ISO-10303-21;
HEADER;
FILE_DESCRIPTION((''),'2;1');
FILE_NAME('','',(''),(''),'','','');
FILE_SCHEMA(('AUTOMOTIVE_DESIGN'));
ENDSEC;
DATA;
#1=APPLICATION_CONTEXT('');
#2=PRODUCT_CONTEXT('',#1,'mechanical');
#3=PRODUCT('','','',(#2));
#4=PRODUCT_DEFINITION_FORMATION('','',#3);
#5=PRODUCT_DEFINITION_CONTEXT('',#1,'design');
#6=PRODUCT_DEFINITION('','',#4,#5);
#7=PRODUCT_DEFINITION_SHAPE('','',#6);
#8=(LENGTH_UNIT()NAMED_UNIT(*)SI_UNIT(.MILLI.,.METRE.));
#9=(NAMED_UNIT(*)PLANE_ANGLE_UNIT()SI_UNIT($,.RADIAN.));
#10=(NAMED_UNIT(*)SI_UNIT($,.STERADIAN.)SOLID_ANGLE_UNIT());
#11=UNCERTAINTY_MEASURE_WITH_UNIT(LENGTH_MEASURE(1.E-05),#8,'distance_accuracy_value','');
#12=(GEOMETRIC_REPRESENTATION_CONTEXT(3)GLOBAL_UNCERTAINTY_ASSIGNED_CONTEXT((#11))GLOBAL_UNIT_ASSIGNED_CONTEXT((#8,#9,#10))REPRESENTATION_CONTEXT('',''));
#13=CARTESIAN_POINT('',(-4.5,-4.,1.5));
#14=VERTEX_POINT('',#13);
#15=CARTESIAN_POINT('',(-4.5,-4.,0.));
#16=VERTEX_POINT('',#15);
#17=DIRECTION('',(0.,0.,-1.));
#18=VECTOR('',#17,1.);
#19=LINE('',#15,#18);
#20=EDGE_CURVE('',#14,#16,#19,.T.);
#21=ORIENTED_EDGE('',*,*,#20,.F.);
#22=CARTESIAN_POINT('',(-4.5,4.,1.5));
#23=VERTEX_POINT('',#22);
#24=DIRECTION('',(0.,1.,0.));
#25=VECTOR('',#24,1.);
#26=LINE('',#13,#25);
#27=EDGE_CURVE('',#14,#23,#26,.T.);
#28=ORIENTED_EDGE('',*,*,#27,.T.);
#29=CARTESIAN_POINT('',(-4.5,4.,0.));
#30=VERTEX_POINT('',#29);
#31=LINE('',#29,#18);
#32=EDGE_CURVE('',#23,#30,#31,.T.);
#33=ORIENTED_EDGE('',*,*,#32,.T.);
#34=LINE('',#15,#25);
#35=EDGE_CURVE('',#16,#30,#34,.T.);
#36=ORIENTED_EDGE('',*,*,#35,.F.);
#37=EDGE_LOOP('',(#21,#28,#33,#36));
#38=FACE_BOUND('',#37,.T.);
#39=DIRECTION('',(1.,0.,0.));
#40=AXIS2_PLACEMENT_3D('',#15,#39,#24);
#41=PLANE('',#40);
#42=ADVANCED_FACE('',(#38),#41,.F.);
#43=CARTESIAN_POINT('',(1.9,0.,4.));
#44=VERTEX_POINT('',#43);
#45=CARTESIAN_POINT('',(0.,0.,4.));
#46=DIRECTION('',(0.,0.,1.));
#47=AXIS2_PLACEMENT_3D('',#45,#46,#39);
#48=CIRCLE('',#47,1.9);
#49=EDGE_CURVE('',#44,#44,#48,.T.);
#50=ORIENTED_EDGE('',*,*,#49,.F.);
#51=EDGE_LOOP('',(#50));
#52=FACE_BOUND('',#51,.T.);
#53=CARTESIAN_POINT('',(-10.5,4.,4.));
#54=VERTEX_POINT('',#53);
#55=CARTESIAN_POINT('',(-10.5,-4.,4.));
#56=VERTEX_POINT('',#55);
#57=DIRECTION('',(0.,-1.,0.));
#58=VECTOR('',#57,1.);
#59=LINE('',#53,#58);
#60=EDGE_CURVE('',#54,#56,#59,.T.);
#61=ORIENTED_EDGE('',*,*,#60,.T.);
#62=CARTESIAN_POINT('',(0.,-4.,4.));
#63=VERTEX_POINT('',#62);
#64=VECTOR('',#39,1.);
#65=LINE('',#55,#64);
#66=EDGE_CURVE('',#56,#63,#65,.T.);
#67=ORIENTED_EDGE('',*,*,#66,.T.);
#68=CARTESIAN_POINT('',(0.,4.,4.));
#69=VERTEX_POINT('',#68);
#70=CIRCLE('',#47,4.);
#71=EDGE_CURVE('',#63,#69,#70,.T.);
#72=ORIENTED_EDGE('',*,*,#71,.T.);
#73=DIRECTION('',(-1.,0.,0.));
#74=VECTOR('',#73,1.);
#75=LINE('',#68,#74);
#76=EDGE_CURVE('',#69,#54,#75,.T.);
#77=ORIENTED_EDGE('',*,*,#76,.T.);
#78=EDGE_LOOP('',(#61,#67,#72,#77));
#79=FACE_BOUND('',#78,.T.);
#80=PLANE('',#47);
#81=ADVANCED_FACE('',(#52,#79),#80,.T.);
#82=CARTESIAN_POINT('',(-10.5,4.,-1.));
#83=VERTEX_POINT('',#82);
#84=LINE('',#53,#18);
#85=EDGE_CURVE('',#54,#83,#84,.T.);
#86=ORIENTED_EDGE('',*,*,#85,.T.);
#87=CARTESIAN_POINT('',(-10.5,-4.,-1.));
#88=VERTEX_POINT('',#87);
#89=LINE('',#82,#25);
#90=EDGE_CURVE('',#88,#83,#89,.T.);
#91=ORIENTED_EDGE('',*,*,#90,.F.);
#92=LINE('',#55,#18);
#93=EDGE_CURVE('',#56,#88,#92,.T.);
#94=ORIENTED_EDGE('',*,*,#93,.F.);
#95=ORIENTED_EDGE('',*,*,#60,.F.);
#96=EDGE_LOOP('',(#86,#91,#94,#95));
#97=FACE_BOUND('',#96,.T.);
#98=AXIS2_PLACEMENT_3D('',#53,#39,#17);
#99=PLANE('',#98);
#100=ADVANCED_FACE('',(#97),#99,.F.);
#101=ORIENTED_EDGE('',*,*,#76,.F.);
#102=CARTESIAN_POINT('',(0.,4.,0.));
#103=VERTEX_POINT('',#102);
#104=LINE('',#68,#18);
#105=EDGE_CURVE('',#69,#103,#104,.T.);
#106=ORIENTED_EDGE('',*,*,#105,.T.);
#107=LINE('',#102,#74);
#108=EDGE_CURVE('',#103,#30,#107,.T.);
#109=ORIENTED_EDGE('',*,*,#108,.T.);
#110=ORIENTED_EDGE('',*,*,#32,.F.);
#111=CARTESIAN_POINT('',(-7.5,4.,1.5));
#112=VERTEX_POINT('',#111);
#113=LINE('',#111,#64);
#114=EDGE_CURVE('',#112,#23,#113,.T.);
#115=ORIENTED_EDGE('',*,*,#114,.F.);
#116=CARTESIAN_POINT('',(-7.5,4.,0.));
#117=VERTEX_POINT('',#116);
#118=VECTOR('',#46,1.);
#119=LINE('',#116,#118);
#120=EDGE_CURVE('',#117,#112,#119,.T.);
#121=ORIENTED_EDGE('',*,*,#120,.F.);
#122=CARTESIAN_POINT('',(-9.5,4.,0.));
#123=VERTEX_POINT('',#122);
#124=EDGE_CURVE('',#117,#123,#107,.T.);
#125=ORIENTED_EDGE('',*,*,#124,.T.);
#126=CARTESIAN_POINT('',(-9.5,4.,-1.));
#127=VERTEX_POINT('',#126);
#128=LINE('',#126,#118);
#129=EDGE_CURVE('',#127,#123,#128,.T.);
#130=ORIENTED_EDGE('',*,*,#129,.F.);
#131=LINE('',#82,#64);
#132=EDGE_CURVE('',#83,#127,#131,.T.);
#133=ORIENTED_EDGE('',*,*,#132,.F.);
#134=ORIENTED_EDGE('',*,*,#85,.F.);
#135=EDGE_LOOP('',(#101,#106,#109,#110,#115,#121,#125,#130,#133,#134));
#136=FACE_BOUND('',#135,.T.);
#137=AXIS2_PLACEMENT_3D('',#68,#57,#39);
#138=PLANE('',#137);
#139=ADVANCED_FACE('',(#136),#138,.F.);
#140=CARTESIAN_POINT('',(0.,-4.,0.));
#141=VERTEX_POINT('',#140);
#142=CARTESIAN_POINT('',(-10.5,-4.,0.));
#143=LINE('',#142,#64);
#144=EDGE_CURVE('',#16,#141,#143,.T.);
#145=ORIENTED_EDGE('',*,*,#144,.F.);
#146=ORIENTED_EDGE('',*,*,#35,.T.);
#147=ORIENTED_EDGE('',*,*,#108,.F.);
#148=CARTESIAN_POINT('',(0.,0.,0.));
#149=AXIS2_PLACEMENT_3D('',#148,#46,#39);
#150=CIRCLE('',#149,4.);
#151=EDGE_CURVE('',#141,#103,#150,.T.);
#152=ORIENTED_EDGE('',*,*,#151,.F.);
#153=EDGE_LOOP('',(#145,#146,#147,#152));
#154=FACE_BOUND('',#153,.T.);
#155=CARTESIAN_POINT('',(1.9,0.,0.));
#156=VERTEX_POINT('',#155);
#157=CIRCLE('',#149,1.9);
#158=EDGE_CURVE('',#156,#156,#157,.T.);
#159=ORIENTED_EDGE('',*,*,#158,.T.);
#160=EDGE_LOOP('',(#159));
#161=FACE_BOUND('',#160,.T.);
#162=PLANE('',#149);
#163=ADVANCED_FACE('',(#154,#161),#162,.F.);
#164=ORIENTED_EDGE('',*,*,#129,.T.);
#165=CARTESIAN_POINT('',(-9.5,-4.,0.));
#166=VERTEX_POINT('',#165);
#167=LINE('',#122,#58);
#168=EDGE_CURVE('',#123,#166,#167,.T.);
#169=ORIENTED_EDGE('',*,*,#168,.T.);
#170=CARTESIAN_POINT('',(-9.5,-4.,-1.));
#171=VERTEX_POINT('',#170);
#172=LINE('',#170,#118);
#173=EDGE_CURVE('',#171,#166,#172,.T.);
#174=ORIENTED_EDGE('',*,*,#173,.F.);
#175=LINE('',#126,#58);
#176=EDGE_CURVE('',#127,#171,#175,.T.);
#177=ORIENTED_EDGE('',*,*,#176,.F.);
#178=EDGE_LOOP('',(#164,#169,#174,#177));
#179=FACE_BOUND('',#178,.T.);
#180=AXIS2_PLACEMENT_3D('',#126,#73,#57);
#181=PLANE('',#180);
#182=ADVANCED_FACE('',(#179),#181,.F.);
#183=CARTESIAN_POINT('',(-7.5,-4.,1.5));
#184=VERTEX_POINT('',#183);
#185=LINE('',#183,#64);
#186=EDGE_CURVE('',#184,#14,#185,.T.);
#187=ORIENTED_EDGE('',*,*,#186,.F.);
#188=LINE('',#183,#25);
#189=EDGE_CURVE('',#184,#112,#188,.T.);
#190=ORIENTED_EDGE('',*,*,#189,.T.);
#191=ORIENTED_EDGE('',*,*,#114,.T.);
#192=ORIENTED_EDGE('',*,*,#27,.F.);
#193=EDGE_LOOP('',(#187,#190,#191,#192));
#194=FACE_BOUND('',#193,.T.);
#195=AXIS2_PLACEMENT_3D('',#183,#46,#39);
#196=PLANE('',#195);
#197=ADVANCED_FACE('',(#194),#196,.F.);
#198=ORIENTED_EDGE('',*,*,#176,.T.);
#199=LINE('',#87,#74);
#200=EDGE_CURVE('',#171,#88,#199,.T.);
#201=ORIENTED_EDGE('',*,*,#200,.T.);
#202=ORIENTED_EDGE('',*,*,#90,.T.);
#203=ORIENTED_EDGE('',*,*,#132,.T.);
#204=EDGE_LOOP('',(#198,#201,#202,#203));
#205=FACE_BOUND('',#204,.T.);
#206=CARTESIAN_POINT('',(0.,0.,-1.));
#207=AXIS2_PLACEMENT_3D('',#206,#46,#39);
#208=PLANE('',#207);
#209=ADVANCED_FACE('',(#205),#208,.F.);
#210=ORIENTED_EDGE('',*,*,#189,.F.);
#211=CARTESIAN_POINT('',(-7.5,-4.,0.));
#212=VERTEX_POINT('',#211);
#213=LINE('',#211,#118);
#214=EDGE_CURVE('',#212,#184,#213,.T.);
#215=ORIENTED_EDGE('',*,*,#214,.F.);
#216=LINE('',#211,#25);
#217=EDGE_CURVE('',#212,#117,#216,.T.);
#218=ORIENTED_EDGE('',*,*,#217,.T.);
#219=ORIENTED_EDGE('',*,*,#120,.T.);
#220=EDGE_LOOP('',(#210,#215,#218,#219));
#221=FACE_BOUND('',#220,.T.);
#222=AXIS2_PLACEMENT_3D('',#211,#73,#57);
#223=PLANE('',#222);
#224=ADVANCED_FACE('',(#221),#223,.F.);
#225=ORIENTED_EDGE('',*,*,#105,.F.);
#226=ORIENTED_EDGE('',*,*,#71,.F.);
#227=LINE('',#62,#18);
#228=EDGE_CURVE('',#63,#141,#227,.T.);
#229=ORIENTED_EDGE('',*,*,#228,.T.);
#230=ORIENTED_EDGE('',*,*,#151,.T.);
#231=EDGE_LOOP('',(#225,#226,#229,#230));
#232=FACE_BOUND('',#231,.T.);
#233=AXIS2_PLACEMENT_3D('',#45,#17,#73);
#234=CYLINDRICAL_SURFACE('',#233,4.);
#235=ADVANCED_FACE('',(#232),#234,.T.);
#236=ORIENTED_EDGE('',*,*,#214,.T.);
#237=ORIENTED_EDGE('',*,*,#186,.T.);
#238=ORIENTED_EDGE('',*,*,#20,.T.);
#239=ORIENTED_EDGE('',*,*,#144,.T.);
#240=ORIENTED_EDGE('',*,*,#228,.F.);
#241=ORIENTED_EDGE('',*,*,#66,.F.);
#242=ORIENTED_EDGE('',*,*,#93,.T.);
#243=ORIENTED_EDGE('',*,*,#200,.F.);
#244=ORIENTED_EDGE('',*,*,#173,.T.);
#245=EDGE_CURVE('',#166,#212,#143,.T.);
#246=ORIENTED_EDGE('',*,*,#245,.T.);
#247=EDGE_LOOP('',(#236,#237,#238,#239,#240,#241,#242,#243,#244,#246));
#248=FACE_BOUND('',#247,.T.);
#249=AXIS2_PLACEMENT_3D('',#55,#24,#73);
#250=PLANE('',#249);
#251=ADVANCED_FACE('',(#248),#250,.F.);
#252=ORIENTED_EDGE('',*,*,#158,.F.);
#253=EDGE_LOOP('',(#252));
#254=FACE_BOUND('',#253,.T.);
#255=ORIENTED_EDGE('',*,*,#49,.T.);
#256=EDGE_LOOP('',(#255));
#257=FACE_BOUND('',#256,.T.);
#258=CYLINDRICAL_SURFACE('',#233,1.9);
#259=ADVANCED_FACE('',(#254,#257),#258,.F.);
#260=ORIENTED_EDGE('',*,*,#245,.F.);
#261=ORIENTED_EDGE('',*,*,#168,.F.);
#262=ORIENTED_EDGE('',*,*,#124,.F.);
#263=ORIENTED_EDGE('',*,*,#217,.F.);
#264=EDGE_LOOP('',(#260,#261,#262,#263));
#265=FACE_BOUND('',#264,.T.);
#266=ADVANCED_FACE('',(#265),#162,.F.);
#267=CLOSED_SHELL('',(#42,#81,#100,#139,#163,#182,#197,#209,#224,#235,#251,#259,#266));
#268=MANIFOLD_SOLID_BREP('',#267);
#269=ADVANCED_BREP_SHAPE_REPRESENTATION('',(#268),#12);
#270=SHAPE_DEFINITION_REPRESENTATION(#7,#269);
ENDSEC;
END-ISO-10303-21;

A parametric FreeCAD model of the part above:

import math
import FreeCAD as App
import Part
import Sketcher
from FreeCAD import Vector

doc = App.newDocument("Part")
params = doc.addObject("Spreadsheet::Sheet", "Params")
for row, (alias, value) in enumerate([
    ("sketch1_radius", "4 mm"),
    ("sketch1_diameter", "3.8 mm"),
    ("sketch1_width", "10.5 mm"),
    ("pad1_length", "4 mm"),
    ("sketch2_width", "3 mm"),
    ("sketch2_height", "1.5 mm"),
    ("sketch3_width", "1 mm"),
    ("sketch3_height", "8 mm"),
    ("pad2_length", "1 mm"),
], start=1):
    params.set(f"A{row}", alias)
    params.set(f"B{row}", "=" + value)
    params.setAlias(f"B{row}", alias)

body = doc.addObject("PartDesign::Body", "Body")

# Sketch on XY plane
sketch1 = doc.addObject("Sketcher::SketchObject", "Sketch")
body.addObject(sketch1)
sketch1.AttachmentSupport = (doc.XY_Plane, [""])
sketch1.MapMode = "FlatFace"
sketch1.addGeometry(Part.LineSegment(Vector(0, 4, 0), Vector(-10.5, 4, 0)), False)
sketch1.addGeometry(Part.LineSegment(Vector(-10.5, 4, 0), Vector(-10.5, -4, 0)), False)
sketch1.addGeometry(Part.LineSegment(Vector(-10.5, -4, 0), Vector(0, -4, 0)), False)
sketch1.addGeometry(Part.ArcOfCircle(Part.Circle(Vector(0, 0, 0), Vector(0, 0, 1), 4), math.radians(-90), math.radians(90)), False)
sketch1.addGeometry(Part.Circle(Vector(0, 0, 0), Vector(0, 0, 1), 1.9), False)
sketch1.addConstraint(Sketcher.Constraint("Coincident", 0, 2, 1, 1))
sketch1.addConstraint(Sketcher.Constraint("Coincident", 1, 2, 2, 1))
sketch1.addConstraint(Sketcher.Constraint("Tangent", 2, 2, 3, 1))
sketch1.addConstraint(Sketcher.Constraint("Tangent", 3, 2, 0, 1))
sketch1.addConstraint(Sketcher.Constraint("Horizontal", 0))
sketch1.addConstraint(Sketcher.Constraint("Vertical", 1))
sketch1.addConstraint(Sketcher.Constraint("Horizontal", 2))
sketch1.addConstraint(Sketcher.Constraint("Coincident", 3, 3, -1, 1))
sketch1.addConstraint(Sketcher.Constraint("Coincident", 4, 3, -1, 1))
sketch1.addConstraint(Sketcher.Constraint("Radius", 3, 4.0))
sketch1.addConstraint(Sketcher.Constraint("Diameter", 4, 3.8))
sketch1.addConstraint(Sketcher.Constraint("DistanceX", 0, 2, 0, 1, 10.5))
sketch1.setExpression("Constraints[9]", "Params.sketch1_radius")
sketch1.setExpression("Constraints[10]", "Params.sketch1_diameter")
sketch1.setExpression("Constraints[11]", "Params.sketch1_width")
pad1 = doc.addObject("PartDesign::Pad", "Pad")
body.addObject(pad1)
pad1.Profile = sketch1
pad1.setExpression("Length", "Params.pad1_length")

# Sketch on XZ plane
sketch2 = doc.addObject("Sketcher::SketchObject", "Sketch001")
body.addObject(sketch2)
sketch2.AttachmentSupport = (doc.XZ_Plane, [""])
sketch2.MapMode = "FlatFace"
sketch2.AttachmentOffset = App.Placement(Vector(0, 0, -4), App.Rotation())
sketch2.addGeometry(Part.LineSegment(Vector(-7.5, 0, 0), Vector(-7.5, 1.5, 0)), False)
sketch2.addGeometry(Part.LineSegment(Vector(-7.5, 1.5, 0), Vector(-4.5, 1.5, 0)), False)
sketch2.addGeometry(Part.LineSegment(Vector(-4.5, 1.5, 0), Vector(-4.5, 0, 0)), False)
sketch2.addGeometry(Part.LineSegment(Vector(-4.5, 0, 0), Vector(-7.5, 0, 0)), False)
sketch2.addConstraint(Sketcher.Constraint("Coincident", 0, 2, 1, 1))
sketch2.addConstraint(Sketcher.Constraint("Coincident", 1, 2, 2, 1))
sketch2.addConstraint(Sketcher.Constraint("Coincident", 2, 2, 3, 1))
sketch2.addConstraint(Sketcher.Constraint("Coincident", 3, 2, 0, 1))
sketch2.addConstraint(Sketcher.Constraint("Vertical", 0))
sketch2.addConstraint(Sketcher.Constraint("Horizontal", 1))
sketch2.addConstraint(Sketcher.Constraint("Vertical", 2))
sketch2.addConstraint(Sketcher.Constraint("Horizontal", 3))
sketch2.addConstraint(Sketcher.Constraint("PointOnObject", 2, 2, -1))
sketch2.addConstraint(Sketcher.Constraint("DistanceX", 1, 1, 1, 2, 3.0))
sketch2.addConstraint(Sketcher.Constraint("DistanceY", 0, 1, 0, 2, 1.5))
sketch2.addConstraint(Sketcher.Constraint("DistanceX", 0, 2, -1, 1, 7.5))
sketch2.setExpression("Constraints[9]", "Params.sketch2_width")
sketch2.setExpression("Constraints[10]", "Params.sketch2_height")
pocket1 = doc.addObject("PartDesign::Pocket", "Pocket")
body.addObject(pocket1)
pocket1.Profile = sketch2
pocket1.Type = "ThroughAll"
pocket1.Reversed = True

# Sketch on XY plane
sketch3 = doc.addObject("Sketcher::SketchObject", "Sketch002")
body.addObject(sketch3)
sketch3.AttachmentSupport = (doc.XY_Plane, [""])
sketch3.MapMode = "FlatFace"
sketch3.addGeometry(Part.LineSegment(Vector(-9.5, 4, 0), Vector(-9.5, -4, 0)), False)
sketch3.addGeometry(Part.LineSegment(Vector(-9.5, -4, 0), Vector(-10.5, -4, 0)), False)
sketch3.addGeometry(Part.LineSegment(Vector(-10.5, -4, 0), Vector(-10.5, 4, 0)), False)
sketch3.addGeometry(Part.LineSegment(Vector(-10.5, 4, 0), Vector(-9.5, 4, 0)), False)
sketch3.addConstraint(Sketcher.Constraint("Coincident", 0, 2, 1, 1))
sketch3.addConstraint(Sketcher.Constraint("Coincident", 1, 2, 2, 1))
sketch3.addConstraint(Sketcher.Constraint("Coincident", 2, 2, 3, 1))
sketch3.addConstraint(Sketcher.Constraint("Coincident", 3, 2, 0, 1))
sketch3.addConstraint(Sketcher.Constraint("Vertical", 0))
sketch3.addConstraint(Sketcher.Constraint("Horizontal", 1))
sketch3.addConstraint(Sketcher.Constraint("Vertical", 2))
sketch3.addConstraint(Sketcher.Constraint("Horizontal", 3))
sketch3.addConstraint(Sketcher.Constraint("DistanceX", 1, 2, 1, 1, 1.0))
sketch3.addConstraint(Sketcher.Constraint("DistanceY", 0, 2, 0, 1, 8.0))
sketch3.addConstraint(Sketcher.Constraint("DistanceY", 0, 2, -1, 1, 4.0))
sketch3.addConstraint(Sketcher.Constraint("DistanceX", 0, 2, -1, 1, 9.5))
sketch3.setExpression("Constraints[8]", "Params.sketch3_width")
sketch3.setExpression("Constraints[9]", "Params.sketch3_height")
pad2 = doc.addObject("PartDesign::Pad", "Pad001")
body.addObject(pad2)
pad2.Profile = sketch3
pad2.setExpression("Length", "Params.pad2_length")
pad2.Reversed = True

doc.recompute()
